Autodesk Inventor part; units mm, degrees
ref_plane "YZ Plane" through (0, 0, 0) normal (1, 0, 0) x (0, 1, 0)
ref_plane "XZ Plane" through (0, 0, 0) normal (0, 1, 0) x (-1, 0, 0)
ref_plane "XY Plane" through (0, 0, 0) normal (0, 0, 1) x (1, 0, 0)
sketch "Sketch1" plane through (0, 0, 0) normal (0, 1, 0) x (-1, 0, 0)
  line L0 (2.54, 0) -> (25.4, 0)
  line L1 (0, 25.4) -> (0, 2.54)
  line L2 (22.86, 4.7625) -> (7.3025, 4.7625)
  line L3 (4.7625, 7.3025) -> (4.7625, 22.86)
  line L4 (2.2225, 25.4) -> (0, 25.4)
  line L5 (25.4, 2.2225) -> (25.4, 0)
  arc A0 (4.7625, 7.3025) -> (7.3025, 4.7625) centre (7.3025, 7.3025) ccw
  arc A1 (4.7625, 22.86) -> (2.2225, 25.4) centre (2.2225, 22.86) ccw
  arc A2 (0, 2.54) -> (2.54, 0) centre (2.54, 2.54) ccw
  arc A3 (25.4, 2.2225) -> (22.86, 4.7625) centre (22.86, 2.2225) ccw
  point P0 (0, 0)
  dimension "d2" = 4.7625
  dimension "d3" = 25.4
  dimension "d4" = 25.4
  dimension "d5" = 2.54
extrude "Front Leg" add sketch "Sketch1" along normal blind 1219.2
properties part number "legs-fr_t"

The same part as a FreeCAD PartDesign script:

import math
import FreeCAD as App
import Part
import Sketcher

V = App.Vector
Q = App.Units.Quantity

doc = App.newDocument("Part")
body = doc.addObject("PartDesign::Body", "Body")

sketch1 = body.newObject("Sketcher::SketchObject", "Sketch")
sketch1.AttachmentSupport = (doc.getObject("XZ_Plane"), [""])
sketch1.MapMode = "FlatFace"
sketch1.addGeometry([
    Part.ArcOfCircle(Part.Circle(V(-2.5, 2.5, 0), V(0, 0, 1), 2.5), math.radians(-90), math.radians(0)),
    Part.LineSegment(V(-2.5, 0, 0), V(-25.4, 0, 0)),
    Part.LineSegment(V(-25.4, 0, 0), V(-25.4, 2.2, 0)),
    Part.ArcOfCircle(Part.Circle(V(-22.9, 2.2, 0), V(0, 0, 1), 2.5), math.radians(90), math.radians(180)),
    Part.LineSegment(V(-22.9, 4.8, 0), V(-7.3, 4.8, 0)),
    Part.ArcOfCircle(Part.Circle(V(-7.3, 7.3, 0), V(0, 0, 1), 2.5), math.radians(-90), math.radians(0)),
    Part.LineSegment(V(-4.8, 7.3, 0), V(-4.8, 22.9, 0)),
    Part.ArcOfCircle(Part.Circle(V(-2.2, 22.9, 0), V(0, 0, 1), 2.5), math.radians(90), math.radians(180)),
    Part.LineSegment(V(-2.2, 25.4, 0), V(0, 25.4, 0)),
    Part.LineSegment(V(0, 25.4, 0), V(0, 2.5, 0)),
], False)
sketch1.addConstraint([
    Sketcher.Constraint("Tangent", 0, 1, 1, 1),
    Sketcher.Constraint("Coincident", 1, 2, 2, 1),
    Sketcher.Constraint("Tangent", 2, 2, 3, 2),
    Sketcher.Constraint("Tangent", 3, 1, 4, 1),
    Sketcher.Constraint("Tangent", 4, 2, 5, 1),
    Sketcher.Constraint("Tangent", 5, 2, 6, 1),
    Sketcher.Constraint("Tangent", 6, 2, 7, 2),
    Sketcher.Constraint("Tangent", 7, 1, 8, 1),
    Sketcher.Constraint("Coincident", 8, 2, 9, 1),
    Sketcher.Constraint("Tangent", 9, 2, 0, 2),
    Sketcher.Constraint("Horizontal", 1),
    Sketcher.Constraint("Vertical", 2),
    Sketcher.Constraint("Horizontal", 4),
    Sketcher.Constraint("Vertical", 6),
    Sketcher.Constraint("Horizontal", 8),
    Sketcher.Constraint("Vertical", 9),
    Sketcher.Constraint("Equal", 0, 3),
    Sketcher.Constraint("Equal", 3, 5),
    Sketcher.Constraint("Equal", 5, 7),
    Sketcher.Constraint("PointOnObject", 0, 1, -1),
    Sketcher.Constraint("PointOnObject", 8, 2, -2),
    Sketcher.Constraint("Equal", 8, 2),
    Sketcher.Constraint("Equal", 4, 6),
    Sketcher.Constraint("Radius", 0, Q("0.1 in")),
    Sketcher.Constraint("DistanceX", 1, 2, -1, 1, Q("1 in")),
    Sketcher.Constraint("DistanceY", -1, 1, 3, 1, Q("0.1875 in")),
])
pad1 = body.newObject("PartDesign::Pad", "Pad")
pad1.Profile = sketch1
pad1.Length = Q("48 in")
pad1.Reversed = True

doc.recompute()
